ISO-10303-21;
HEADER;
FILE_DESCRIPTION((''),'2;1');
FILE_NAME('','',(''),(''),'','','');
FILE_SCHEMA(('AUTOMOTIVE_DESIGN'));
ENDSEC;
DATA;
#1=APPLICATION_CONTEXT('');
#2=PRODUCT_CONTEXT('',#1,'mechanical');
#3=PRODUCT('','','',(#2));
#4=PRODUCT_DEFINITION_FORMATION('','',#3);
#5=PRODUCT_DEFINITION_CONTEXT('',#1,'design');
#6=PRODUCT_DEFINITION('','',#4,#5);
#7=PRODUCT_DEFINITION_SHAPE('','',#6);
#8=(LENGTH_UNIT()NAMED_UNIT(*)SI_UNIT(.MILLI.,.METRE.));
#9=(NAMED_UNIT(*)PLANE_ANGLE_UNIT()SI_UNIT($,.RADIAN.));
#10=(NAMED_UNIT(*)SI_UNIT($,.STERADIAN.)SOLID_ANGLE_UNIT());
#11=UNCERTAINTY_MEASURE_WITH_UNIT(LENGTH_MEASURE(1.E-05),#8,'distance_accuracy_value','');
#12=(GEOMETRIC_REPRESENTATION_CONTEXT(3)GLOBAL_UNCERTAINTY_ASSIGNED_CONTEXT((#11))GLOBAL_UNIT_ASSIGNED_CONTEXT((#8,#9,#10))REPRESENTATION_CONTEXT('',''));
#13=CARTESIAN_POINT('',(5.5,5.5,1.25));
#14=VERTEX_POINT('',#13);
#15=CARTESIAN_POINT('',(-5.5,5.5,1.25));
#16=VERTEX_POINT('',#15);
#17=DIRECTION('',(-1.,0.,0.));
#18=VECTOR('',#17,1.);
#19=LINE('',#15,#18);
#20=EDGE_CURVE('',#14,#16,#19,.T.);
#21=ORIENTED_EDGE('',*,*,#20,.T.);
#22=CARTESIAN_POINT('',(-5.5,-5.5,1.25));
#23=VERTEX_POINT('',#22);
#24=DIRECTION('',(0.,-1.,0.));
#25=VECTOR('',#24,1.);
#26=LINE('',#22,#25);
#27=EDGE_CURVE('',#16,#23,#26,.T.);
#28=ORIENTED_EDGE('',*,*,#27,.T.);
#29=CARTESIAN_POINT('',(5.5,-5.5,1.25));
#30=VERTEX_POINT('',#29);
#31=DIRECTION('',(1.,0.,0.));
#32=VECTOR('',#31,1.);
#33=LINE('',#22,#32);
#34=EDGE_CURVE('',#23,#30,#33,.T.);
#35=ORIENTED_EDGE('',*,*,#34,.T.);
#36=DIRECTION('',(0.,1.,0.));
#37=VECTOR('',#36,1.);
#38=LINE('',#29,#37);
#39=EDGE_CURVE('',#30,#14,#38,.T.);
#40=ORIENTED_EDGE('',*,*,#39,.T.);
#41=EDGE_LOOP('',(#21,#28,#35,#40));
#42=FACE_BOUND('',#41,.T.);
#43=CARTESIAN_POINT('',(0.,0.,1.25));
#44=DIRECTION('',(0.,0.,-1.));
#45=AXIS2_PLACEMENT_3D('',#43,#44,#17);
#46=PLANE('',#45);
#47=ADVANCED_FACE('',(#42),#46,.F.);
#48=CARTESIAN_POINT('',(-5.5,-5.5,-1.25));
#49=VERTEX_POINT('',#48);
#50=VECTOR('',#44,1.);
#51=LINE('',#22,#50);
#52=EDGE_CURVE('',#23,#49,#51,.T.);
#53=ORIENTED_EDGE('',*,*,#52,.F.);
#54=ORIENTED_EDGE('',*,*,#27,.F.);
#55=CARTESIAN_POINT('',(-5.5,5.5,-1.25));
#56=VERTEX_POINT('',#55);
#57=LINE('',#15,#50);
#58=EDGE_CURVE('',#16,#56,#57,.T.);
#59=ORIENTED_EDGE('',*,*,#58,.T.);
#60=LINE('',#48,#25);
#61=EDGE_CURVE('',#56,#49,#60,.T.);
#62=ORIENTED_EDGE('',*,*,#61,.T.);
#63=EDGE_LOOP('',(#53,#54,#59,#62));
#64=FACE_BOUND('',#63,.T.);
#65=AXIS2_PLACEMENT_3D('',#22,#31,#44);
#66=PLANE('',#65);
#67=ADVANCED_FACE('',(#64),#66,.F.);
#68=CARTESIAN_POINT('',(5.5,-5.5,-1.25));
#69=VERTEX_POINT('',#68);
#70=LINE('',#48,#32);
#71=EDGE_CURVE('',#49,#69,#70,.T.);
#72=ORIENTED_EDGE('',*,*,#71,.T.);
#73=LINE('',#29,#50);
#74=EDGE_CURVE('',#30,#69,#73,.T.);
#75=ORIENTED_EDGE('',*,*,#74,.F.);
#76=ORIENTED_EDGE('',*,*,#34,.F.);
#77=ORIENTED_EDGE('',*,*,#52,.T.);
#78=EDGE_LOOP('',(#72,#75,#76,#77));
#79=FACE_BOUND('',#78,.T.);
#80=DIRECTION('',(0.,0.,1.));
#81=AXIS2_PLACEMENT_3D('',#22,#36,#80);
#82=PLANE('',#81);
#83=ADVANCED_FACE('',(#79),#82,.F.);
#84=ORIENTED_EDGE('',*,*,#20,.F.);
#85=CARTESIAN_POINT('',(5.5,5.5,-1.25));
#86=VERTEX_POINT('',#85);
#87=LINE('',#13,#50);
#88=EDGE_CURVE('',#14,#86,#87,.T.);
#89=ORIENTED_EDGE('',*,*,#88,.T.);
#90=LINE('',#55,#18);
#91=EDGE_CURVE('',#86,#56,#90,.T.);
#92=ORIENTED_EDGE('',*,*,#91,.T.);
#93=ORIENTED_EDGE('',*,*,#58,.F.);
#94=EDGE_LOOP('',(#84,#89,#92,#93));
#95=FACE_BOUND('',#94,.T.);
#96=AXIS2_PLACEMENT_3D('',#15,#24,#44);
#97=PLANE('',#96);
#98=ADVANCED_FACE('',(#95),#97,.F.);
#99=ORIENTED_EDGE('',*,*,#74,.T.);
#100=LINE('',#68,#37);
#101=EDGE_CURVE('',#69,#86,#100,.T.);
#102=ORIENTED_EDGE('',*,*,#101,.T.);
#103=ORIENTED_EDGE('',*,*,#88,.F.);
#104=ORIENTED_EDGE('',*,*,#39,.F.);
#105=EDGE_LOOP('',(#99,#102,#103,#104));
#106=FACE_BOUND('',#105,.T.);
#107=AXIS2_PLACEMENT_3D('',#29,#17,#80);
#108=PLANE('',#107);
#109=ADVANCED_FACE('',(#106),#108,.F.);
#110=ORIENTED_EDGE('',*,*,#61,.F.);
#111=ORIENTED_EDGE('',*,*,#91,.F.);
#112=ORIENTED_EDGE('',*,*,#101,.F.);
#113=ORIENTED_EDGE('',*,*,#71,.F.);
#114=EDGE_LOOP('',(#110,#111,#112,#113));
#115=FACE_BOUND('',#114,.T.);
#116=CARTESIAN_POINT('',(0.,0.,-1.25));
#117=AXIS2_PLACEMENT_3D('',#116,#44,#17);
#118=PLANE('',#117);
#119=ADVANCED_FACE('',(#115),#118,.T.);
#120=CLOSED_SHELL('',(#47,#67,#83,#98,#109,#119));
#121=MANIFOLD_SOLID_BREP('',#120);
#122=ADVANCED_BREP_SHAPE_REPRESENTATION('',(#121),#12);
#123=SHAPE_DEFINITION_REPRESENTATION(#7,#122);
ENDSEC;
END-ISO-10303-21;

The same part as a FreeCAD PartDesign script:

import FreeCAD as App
import Part
import Sketcher

V = App.Vector


def add_polygon(sketch, points):
    """Adds a closed chain of lines whose ends are joined by coincident constraints."""
    first, n = sketch.GeometryCount, len(points)
    for a, b in zip(points, points[1:] + points[:1]):
        sketch.addGeometry(Part.LineSegment(App.Vector(*a, 0), App.Vector(*b, 0)), False)
    for i in range(n):
        sketch.addConstraint(Sketcher.Constraint("Coincident", first + i, 2, first + (i + 1) % n, 1))

doc = App.newDocument("Part")
body = doc.addObject("PartDesign::Body", "Body")

# Sketch on XY plane
sketch1 = body.newObject("Sketcher::SketchObject", "Sketch")
sketch1.AttachmentSupport = (doc.getObject("XY_Plane"), [""])
sketch1.MapMode = "FlatFace"
add_polygon(sketch1, [(-5.5, 5.5), (-5.5, -5.5), (5.5, -5.5), (5.5, 5.5)])  # lines 0-3
sketch1.addConstraint(Sketcher.Constraint("Vertical", 0))
sketch1.addConstraint(Sketcher.Constraint("Horizontal", 1))
sketch1.addConstraint(Sketcher.Constraint("Vertical", 2))
sketch1.addConstraint(Sketcher.Constraint("Horizontal", 3))
sketch1.addConstraint(Sketcher.Constraint("Symmetric", 0, 2, 2, 2, -1, 1))
sketch1.addConstraint(Sketcher.Constraint("Equal", 3, 0))
sketch1.addConstraint(Sketcher.Constraint("DistanceX", 1, 1, 1, 2, 11.0))
pad1 = body.newObject("PartDesign::Pad", "Pad")
pad1.Profile = sketch1
pad1.Length = 2.5
pad1.Midplane = True

doc.recompute()
